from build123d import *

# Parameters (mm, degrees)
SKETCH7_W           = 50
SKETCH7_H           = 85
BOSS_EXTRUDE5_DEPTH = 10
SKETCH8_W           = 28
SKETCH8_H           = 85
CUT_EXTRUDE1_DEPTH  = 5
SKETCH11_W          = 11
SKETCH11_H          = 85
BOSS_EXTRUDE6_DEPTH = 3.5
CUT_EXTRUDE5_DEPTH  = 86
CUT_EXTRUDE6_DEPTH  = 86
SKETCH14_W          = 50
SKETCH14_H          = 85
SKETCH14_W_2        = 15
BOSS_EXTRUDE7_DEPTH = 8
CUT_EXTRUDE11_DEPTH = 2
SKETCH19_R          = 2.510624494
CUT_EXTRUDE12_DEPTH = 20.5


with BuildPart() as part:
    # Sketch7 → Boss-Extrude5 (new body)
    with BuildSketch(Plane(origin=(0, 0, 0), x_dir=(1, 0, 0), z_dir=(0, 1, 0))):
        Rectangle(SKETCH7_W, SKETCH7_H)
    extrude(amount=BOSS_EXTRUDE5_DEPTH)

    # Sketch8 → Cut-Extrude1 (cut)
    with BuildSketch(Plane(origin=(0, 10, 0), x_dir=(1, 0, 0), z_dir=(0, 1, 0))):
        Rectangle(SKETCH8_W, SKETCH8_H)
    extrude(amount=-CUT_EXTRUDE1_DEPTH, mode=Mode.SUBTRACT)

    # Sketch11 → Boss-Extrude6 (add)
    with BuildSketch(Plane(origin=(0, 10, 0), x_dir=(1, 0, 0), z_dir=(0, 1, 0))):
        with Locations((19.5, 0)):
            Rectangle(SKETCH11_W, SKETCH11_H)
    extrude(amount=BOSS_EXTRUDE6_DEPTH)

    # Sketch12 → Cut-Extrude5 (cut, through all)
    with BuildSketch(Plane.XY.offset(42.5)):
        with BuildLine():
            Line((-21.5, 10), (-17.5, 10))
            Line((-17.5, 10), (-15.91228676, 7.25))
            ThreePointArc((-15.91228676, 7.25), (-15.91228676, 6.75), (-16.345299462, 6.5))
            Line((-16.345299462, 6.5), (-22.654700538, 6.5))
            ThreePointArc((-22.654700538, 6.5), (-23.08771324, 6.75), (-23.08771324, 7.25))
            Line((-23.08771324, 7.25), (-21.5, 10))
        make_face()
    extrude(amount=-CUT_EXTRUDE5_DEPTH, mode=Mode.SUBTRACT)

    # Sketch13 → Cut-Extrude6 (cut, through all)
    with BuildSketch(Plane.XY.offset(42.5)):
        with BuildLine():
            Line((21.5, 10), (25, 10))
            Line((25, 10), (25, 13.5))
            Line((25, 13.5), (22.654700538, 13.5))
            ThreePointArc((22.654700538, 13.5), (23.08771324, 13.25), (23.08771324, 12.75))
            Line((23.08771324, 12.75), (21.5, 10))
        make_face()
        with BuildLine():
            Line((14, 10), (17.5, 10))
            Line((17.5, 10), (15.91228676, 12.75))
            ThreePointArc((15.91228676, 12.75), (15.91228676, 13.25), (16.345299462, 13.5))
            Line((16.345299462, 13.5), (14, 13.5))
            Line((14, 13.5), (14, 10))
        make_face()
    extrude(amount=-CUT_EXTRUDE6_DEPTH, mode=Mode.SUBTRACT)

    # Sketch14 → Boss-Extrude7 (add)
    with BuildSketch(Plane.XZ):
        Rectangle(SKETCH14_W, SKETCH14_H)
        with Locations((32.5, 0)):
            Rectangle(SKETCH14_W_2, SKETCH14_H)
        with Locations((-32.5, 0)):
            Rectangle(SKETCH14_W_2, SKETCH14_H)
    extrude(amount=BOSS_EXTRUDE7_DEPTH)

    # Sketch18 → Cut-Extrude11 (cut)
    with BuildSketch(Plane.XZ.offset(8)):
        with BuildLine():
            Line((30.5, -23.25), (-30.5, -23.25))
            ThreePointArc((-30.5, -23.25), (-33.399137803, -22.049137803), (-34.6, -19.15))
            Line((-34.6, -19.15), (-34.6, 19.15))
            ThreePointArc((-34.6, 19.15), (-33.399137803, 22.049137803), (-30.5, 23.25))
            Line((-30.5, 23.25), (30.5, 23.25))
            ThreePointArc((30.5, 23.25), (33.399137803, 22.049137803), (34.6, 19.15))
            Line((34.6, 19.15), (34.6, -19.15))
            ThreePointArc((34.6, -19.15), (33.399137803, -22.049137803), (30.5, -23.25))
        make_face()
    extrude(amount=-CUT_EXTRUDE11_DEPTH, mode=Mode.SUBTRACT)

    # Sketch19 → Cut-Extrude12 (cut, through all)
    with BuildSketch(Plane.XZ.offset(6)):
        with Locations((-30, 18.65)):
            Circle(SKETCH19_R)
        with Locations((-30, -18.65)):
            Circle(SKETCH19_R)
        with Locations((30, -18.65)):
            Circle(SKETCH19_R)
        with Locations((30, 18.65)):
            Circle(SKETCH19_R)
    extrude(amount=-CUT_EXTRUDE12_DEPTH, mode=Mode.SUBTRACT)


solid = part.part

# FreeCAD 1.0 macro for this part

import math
import FreeCAD as App
import Part
import Sketcher

V = App.Vector
Q = App.Units.Quantity

doc = App.newDocument("Part")
params = doc.addObject("Spreadsheet::Sheet", "Params")
for row, (alias, value) in enumerate([
    ("sketch1_width", "50 mm"),
    ("sketch1_height", "85 mm"),
    ("pad1_length", "10 mm"),
    ("sketch2_width", "28 mm"),
    ("sketch2_height", "85 mm"),
    ("pocket1_length", "5 mm"),
    ("sketch3_width", "11 mm"),
    ("sketch3_height", "85 mm"),
    ("pad2_length", "3.5 mm"),
    ("sketch4_radius", "0.5 mm"),
    ("sketch4_width", "4 mm"),
    ("sketch5_radius", "0.5 mm"),
    ("sketch5_width", "3.5 mm"),
    ("sketch6_width", "80 mm"),
    ("sketch6_height", "85 mm"),
    ("pad3_length", "8 mm"),
    ("sketch7_radius", "4.1 mm"),
    ("sketch7_width", "61 mm"),
    ("sketch7_height", "38.3 mm"),
    ("pocket4_length", "2 mm"),
], start=1):
    params.set(f"A{row}", alias)
    params.set(f"B{row}", "=" + value)
    params.setAlias(f"B{row}", alias)

body = doc.addObject("PartDesign::Body", "Body")

# Sketch on XZ plane
sketch1 = doc.addObject("Sketcher::SketchObject", "Sketch")
body.addObject(sketch1)
sketch1.AttachmentSupport = (doc.XZ_Plane, [""])
sketch1.MapMode = "FlatFace"
sketch1.addGeometry([
    Part.LineSegment(V(-25, -42.5, 0), V(-25, 42.5, 0)),
    Part.LineSegment(V(-25, 42.5, 0), V(25, 42.5, 0)),
    Part.LineSegment(V(25, 42.5, 0), V(25, -42.5, 0)),
    Part.LineSegment(V(25, -42.5, 0), V(-25, -42.5, 0)),
], False)
sketch1.addConstraint([
    Sketcher.Constraint("Coincident", 0, 2, 1, 1),
    Sketcher.Constraint("Coincident", 1, 2, 2, 1),
    Sketcher.Constraint("Coincident", 2, 2, 3, 1),
    Sketcher.Constraint("Coincident", 3, 2, 0, 1),
    Sketcher.Constraint("Vertical", 0),
    Sketcher.Constraint("Horizontal", 1),
    Sketcher.Constraint("Vertical", 2),
    Sketcher.Constraint("Horizontal", 3),
    Sketcher.Constraint("Symmetric", 0, 2, 2, 2, -1, 1),
    Sketcher.Constraint("DistanceX", 1, 1, 1, 2, 50.0),
    Sketcher.Constraint("DistanceY", 0, 1, 0, 2, 85.0),
])
sketch1.setExpression("Constraints[9]", "Params.sketch1_width")
sketch1.setExpression("Constraints[10]", "Params.sketch1_height")
pad1 = doc.addObject("PartDesign::Pad", "Pad")
body.addObject(pad1)
pad1.Profile = sketch1
pad1.setExpression("Length", "Params.pad1_length")
pad1.Reversed = True

# Sketch on XZ plane
sketch2 = doc.addObject("Sketcher::SketchObject", "Sketch001")
body.addObject(sketch2)
sketch2.AttachmentSupport = (doc.XZ_Plane, [""])
sketch2.MapMode = "FlatFace"
sketch2.AttachmentOffset = App.Placement(V(0, 0, -10), App.Rotation())
sketch2.addGeometry([
    Part.LineSegment(V(-14, -42.5, 0), V(-14, 42.5, 0)),
    Part.LineSegment(V(-14, 42.5, 0), V(14, 42.5, 0)),
    Part.LineSegment(V(14, 42.5, 0), V(14, -42.5, 0)),
    Part.LineSegment(V(14, -42.5, 0), V(-14, -42.5, 0)),
], False)
sketch2.addConstraint([
    Sketcher.Constraint("Coincident", 0, 2, 1, 1),
    Sketcher.Constraint("Coincident", 1, 2, 2, 1),
    Sketcher.Constraint("Coincident", 2, 2, 3, 1),
    Sketcher.Constraint("Coincident", 3, 2, 0, 1),
    Sketcher.Constraint("Vertical", 0),
    Sketcher.Constraint("Horizontal", 1),
    Sketcher.Constraint("Vertical", 2),
    Sketcher.Constraint("Horizontal", 3),
    Sketcher.Constraint("Symmetric", 0, 2, 2, 2, -1, 1),
    Sketcher.Constraint("DistanceX", 1, 1, 1, 2, 28.0),
    Sketcher.Constraint("DistanceY", 0, 1, 0, 2, 85.0),
])
sketch2.setExpression("Constraints[9]", "Params.sketch2_width")
sketch2.setExpression("Constraints[10]", "Params.sketch2_height")
pocket1 = doc.addObject("PartDesign::Pocket", "Pocket")
body.addObject(pocket1)
pocket1.Profile = sketch2
pocket1.setExpression("Length", "Params.pocket1_length")
pocket1.Reversed = True

# Sketch on XZ plane
sketch3 = doc.addObject("Sketcher::SketchObject", "Sketch002")
body.addObject(sketch3)
sketch3.AttachmentSupport = (doc.XZ_Plane, [""])
sketch3.MapMode = "FlatFace"
sketch3.AttachmentOffset = App.Placement(V(0, 0, -10), App.Rotation())
sketch3.addGeometry([
    Part.LineSegment(V(14, -42.5, 0), V(14, 42.5, 0)),
    Part.LineSegment(V(14, 42.5, 0), V(25, 42.5, 0)),
    Part.LineSegment(V(25, 42.5, 0), V(25, -42.5, 0)),
    Part.LineSegment(V(25, -42.5, 0), V(14, -42.5, 0)),
], False)
sketch3.addConstraint([
    Sketcher.Constraint("Coincident", 0, 2, 1, 1),
    Sketcher.Constraint("Coincident", 1, 2, 2, 1),
    Sketcher.Constraint("Coincident", 2, 2, 3, 1),
    Sketcher.Constraint("Coincident", 3, 2, 0, 1),
    Sketcher.Constraint("Vertical", 0),
    Sketcher.Constraint("Horizontal", 1),
    Sketcher.Constraint("Vertical", 2),
    Sketcher.Constraint("Horizontal", 3),
    Sketcher.Constraint("DistanceX", 1, 1, 1, 2, 11.0),
    Sketcher.Constraint("DistanceY", 0, 1, 0, 2, 85.0),
    Sketcher.Constraint("DistanceX", -1, 1, 0, 2, 14.0),
    Sketcher.Constraint("DistanceY", -1, 1, 0, 2, 42.5),
])
sketch3.setExpression("Constraints[8]", "Params.sketch3_width")
sketch3.setExpression("Constraints[9]", "Params.sketch3_height")
pad2 = doc.addObject("PartDesign::Pad", "Pad001")
body.addObject(pad2)
pad2.Profile = sketch3
pad2.setExpression("Length", "Params.pad2_length")
pad2.Reversed = True

# Sketch on XY plane
sketch4 = doc.addObject("Sketcher::SketchObject", "Sketch003")
body.addObject(sketch4)
sketch4.AttachmentSupport = (doc.XY_Plane, [""])
sketch4.MapMode = "FlatFace"
sketch4.AttachmentOffset = App.Placement(V(0, 0, 42.5), App.Rotation())
sketch4.addGeometry([
    Part.LineSegment(V(-17.5, 10, 0), V(-21.5, 10, 0)),  # 0
    Part.LineSegment(V(-21.5, 10, 0), V(-23.087713, 7.25, 0)),  # 1
    Part.ArcOfCircle(Part.Circle(V(-22.654701, 7, 0), V(0, 0, 1), 0.5), math.radians(150), math.radians(270)),  # 2
    Part.LineSegment(V(-22.654701, 6.5, 0), V(-16.345299, 6.5, 0)),  # 3
    Part.ArcOfCircle(Part.Circle(V(-16.345299, 7, 0), V(0, 0, 1), 0.5), math.radians(-90), math.radians(30)),  # 4
    Part.LineSegment(V(-15.912287, 7.25, 0), V(-17.5, 10, 0)),  # 5
], False)
sketch4.addConstraint([
    Sketcher.Constraint("Coincident", 0, 2, 1, 1),
    Sketcher.Constraint("Tangent", 1, 2, 2, 1),
    Sketcher.Constraint("Tangent", 2, 2, 3, 1),
    Sketcher.Constraint("Tangent", 3, 2, 4, 1),
    Sketcher.Constraint("Tangent", 4, 2, 5, 1),
    Sketcher.Constraint("Coincident", 5, 2, 0, 1),
    Sketcher.Constraint("Horizontal", 0),
    Sketcher.Constraint("Horizontal", 3),
    Sketcher.Constraint("Equal", 2, 4),
    Sketcher.Constraint("Horizontal", 1, 2, 4, 2),
    Sketcher.Constraint("Radius", 2, 0.5),
    Sketcher.Constraint("DistanceX", 0, 2, 0, 1, 4.0),
    Sketcher.Constraint("Angle", 1, Q("-120 deg")),
    Sketcher.Constraint("DistanceY", -1, 1, 2, 3, 7.0),
    Sketcher.Constraint("DistanceY", -1, 1, 0, 2, 10.0),
    Sketcher.Constraint("DistanceX", 0, 2, -1, 1, 21.5),
])
sketch4.setExpression("Constraints[10]", "Params.sketch4_radius")
sketch4.setExpression("Constraints[11]", "Params.sketch4_width")
pocket2 = doc.addObject("PartDesign::Pocket", "Pocket001")
body.addObject(pocket2)
pocket2.Profile = sketch4
pocket2.Type = "ThroughAll"

# Sketch on XY plane
sketch5 = doc.addObject("Sketcher::SketchObject", "Sketch004")
body.addObject(sketch5)
sketch5.AttachmentSupport = (doc.XY_Plane, [""])
sketch5.MapMode = "FlatFace"
sketch5.AttachmentOffset = App.Placement(V(0, 0, 42.5), App.Rotation())
sketch5.addGeometry([
    Part.LineSegment(V(21.5, 10, 0), V(25, 10, 0)),  # 0
    Part.LineSegment(V(25, 10, 0), V(25, 13.5, 0)),  # 1
    Part.LineSegment(V(25, 13.5, 0), V(22.654701, 13.5, 0)),  # 2
    Part.ArcOfCircle(Part.Circle(V(22.654701, 13, 0), V(0, 0, 1), 0.5), math.radians(-30), math.radians(90)),  # 3
    Part.LineSegment(V(23.087713, 12.75, 0), V(21.5, 10, 0)),  # 4
    Part.LineSegment(V(14, 10, 0), V(17.5, 10, 0)),  # 5
    Part.LineSegment(V(17.5, 10, 0), V(15.912287, 12.75, 0)),  # 6
    Part.ArcOfCircle(Part.Circle(V(16.345299, 13, 0), V(0, 0, 1), 0.5), math.radians(90), math.radians(210)),  # 7
    Part.LineSegment(V(16.345299, 13.5, 0), V(14, 13.5, 0)),  # 8
    Part.LineSegment(V(14, 13.5, 0), V(14, 10, 0)),  # 9
], False)
sketch5.addConstraint([
    Sketcher.Constraint("Coincident", 0, 2, 1, 1),
    Sketcher.Constraint("Coincident", 1, 2, 2, 1),
    Sketcher.Constraint("Tangent", 2, 2, 3, 2),
    Sketcher.Constraint("Tangent", 3, 1, 4, 1),
    Sketcher.Constraint("Coincident", 4, 2, 0, 1),
    Sketcher.Constraint("Coincident", 5, 2, 6, 1),
    Sketcher.Constraint("Tangent", 6, 2, 7, 2),
    Sketcher.Constraint("Tangent", 7, 1, 8, 1),
    Sketcher.Constraint("Coincident", 8, 2, 9, 1),
    Sketcher.Constraint("Coincident", 9, 2, 5, 1),
    Sketcher.Constraint("Horizontal", 0),
    Sketcher.Constraint("Vertical", 1),
    Sketcher.Constraint("Horizontal", 2),
    Sketcher.Constraint("Horizontal", 5),
    Sketcher.Constraint("Horizontal", 8),
    Sketcher.Constraint("Vertical", 9),
    Sketcher.Constraint("Equal", 3, 7),
    Sketcher.Constraint("Horizontal", 3, 3, 7, 3),
    Sketcher.Constraint("Horizontal", 4, 2, 5, 2),
    Sketcher.Constraint("Horizontal", 3, 1, 6, 2),
    Sketcher.Constraint("Equal", 0, 5),
    Sketcher.Constraint("Equal", 5, 1),
    Sketcher.Constraint("Radius", 3, 0.5),
    Sketcher.Constraint("Angle", 4, Q("-120 deg")),
    Sketcher.Constraint("DistanceX", 0, 1, 0, 2, 3.5),
    Sketcher.Constraint("DistanceY", -1, 1, 3, 3, 13.0),
    Sketcher.Constraint("DistanceX", -1, 1, 0, 2, 25.0),
    Sketcher.Constraint("DistanceX", -1, 1, 8, 2, 14.0),
])
sketch5.setExpression("Constraints[22]", "Params.sketch5_radius")
sketch5.setExpression("Constraints[24]", "Params.sketch5_width")
pocket3 = doc.addObject("PartDesign::Pocket", "Pocket002")
body.addObject(pocket3)
pocket3.Profile = sketch5
pocket3.Type = "ThroughAll"

# Sketch on XZ plane
sketch6 = doc.addObject("Sketcher::SketchObject", "Sketch005")
body.addObject(sketch6)
sketch6.AttachmentSupport = (doc.XZ_Plane, [""])
sketch6.MapMode = "FlatFace"
sketch6.addGeometry([
    Part.LineSegment(V(40, -42.5, 0), V(40, 42.5, 0)),
    Part.LineSegment(V(40, 42.5, 0), V(-40, 42.5, 0)),
    Part.LineSegment(V(-40, 42.5, 0), V(-40, -42.5, 0)),
    Part.LineSegment(V(-40, -42.5, 0), V(40, -42.5, 0)),
], False)
sketch6.addConstraint([
    Sketcher.Constraint("Coincident", 0, 2, 1, 1),
    Sketcher.Constraint("Coincident", 1, 2, 2, 1),
    Sketcher.Constraint("Coincident", 2, 2, 3, 1),
    Sketcher.Constraint("Coincident", 3, 2, 0, 1),
    Sketcher.Constraint("Vertical", 0),
    Sketcher.Constraint("Horizontal", 1),
    Sketcher.Constraint("Vertical", 2),
    Sketcher.Constraint("Horizontal", 3),
    Sketcher.Constraint("Symmetric", 0, 2, 2, 2, -1, 1),
    Sketcher.Constraint("DistanceX", 1, 2, 1, 1, 80.0),
    Sketcher.Constraint("DistanceY", 0, 1, 0, 2, 85.0),
])
sketch6.setExpression("Constraints[9]", "Params.sketch6_width")
sketch6.setExpression("Constraints[10]", "Params.sketch6_height")
pad3 = doc.addObject("PartDesign::Pad", "Pad002")
body.addObject(pad3)
pad3.Profile = sketch6
pad3.setExpression("Length", "Params.pad3_length")

# Sketch on XZ plane
sketch7 = doc.addObject("Sketcher::SketchObject", "Sketch006")
body.addObject(sketch7)
sketch7.AttachmentSupport = (doc.XZ_Plane, [""])
sketch7.MapMode = "FlatFace"
sketch7.AttachmentOffset = App.Placement(V(0, 0, 8), App.Rotation())
sketch7.addGeometry([
    Part.LineSegment(V(-30.5, -23.25, 0), V(30.5, -23.25, 0)),  # 0
    Part.ArcOfCircle(Part.Circle(V(30.5, -19.15, 0), V(0, 0, 1), 4.1), math.radians(-90), math.radians(0)),  # 1
    Part.LineSegment(V(34.6, -19.15, 0), V(34.6, 19.15, 0)),  # 2
    Part.ArcOfCircle(Part.Circle(V(30.5, 19.15, 0), V(0, 0, 1), 4.1), math.radians(0), math.radians(90)),  # 3
    Part.LineSegment(V(30.5, 23.25, 0), V(-30.5, 23.25, 0)),  # 4
    Part.ArcOfCircle(Part.Circle(V(-30.5, 19.15, 0), V(0, 0, 1), 4.1), math.radians(90), math.radians(180)),  # 5
    Part.LineSegment(V(-34.6, 19.15, 0), V(-34.6, -19.15, 0)),  # 6
    Part.ArcOfCircle(Part.Circle(V(-30.5, -19.15, 0), V(0, 0, 1), 4.1), math.radians(180), math.radians(270)),  # 7
], False)
sketch7.addConstraint([
    Sketcher.Constraint("Tangent", 0, 2, 1, 1),
    Sketcher.Constraint("Tangent", 1, 2, 2, 1),
    Sketcher.Constraint("Tangent", 2, 2, 3, 1),
    Sketcher.Constraint("Tangent", 3, 2, 4, 1),
    Sketcher.Constraint("Tangent", 4, 2, 5, 1),
    Sketcher.Constraint("Tangent", 5, 2, 6, 1),
    Sketcher.Constraint("Tangent", 6, 2, 7, 1),
    Sketcher.Constraint("Tangent", 7, 2, 0, 1),
    Sketcher.Constraint("Horizontal", 0),
    Sketcher.Constraint("Vertical", 2),
    Sketcher.Constraint("Horizontal", 4),
    Sketcher.Constraint("Vertical", 6),
    Sketcher.Constraint("Equal", 1, 3),
    Sketcher.Constraint("Equal", 3, 5),
    Sketcher.Constraint("Equal", 5, 7),
    Sketcher.Constraint("Symmetric", 1, 3, 5, 3, -1, 1),
    Sketcher.Constraint("Radius", 1, 4.1),
    Sketcher.Constraint("DistanceX", 0, 1, 0, 2, 61.0),
    Sketcher.Constraint("DistanceY", 2, 1, 2, 2, 38.3),
])
sketch7.setExpression("Constraints[16]", "Params.sketch7_radius")
sketch7.setExpression("Constraints[17]", "Params.sketch7_width")
sketch7.setExpression("Constraints[18]", "Params.sketch7_height")
pocket4 = doc.addObject("PartDesign::Pocket", "Pocket003")
body.addObject(pocket4)
pocket4.Profile = sketch7
pocket4.setExpression("Length", "Params.pocket4_length")

# Sketch on XZ plane
sketch8 = doc.addObject("Sketcher::SketchObject", "Sketch007")
body.addObject(sketch8)
sketch8.AttachmentSupport = (doc.XZ_Plane, [""])
sketch8.MapMode = "FlatFace"
sketch8.AttachmentOffset = App.Placement(V(0, 0, 6), App.Rotation())
sketch8.addGeometry([
    Part.Circle(V(-30, 18.65, 0), V(0, 0, 1), 2.510624),
    Part.Circle(V(-30, -18.65, 0), V(0, 0, 1), 2.510624),
    Part.Circle(V(30, -18.65, 0), V(0, 0, 1), 2.510624),
    Part.Circle(V(30, 18.65, 0), V(0, 0, 1), 2.510624),
], False)
sketch8.addConstraint([
    Sketcher.Constraint("Equal", 0, 1),
    Sketcher.Constraint("Equal", 1, 2),
    Sketcher.Constraint("Equal", 2, 3),
    Sketcher.Constraint("Symmetric", 0, 3, 2, 3, -1, 1),
    Sketcher.Constraint("Symmetric", 1, 3, 3, 3, -1, 1),
    Sketcher.Constraint("Symmetric", 1, 3, 2, 3, -2),
    Sketcher.Constraint("DistanceX", 0, 3, -1, 1, 30.0),
    Sketcher.Constraint("DistanceY", 1, 3, 0, 3, 37.3),
    Sketcher.Constraint("Diameter", 0, 5.021249),
])
pocket5 = doc.addObject("PartDesign::Pocket", "Pocket004")
body.addObject(pocket5)
pocket5.Profile = sketch8
pocket5.Type = "ThroughAll"

doc.recompute()
